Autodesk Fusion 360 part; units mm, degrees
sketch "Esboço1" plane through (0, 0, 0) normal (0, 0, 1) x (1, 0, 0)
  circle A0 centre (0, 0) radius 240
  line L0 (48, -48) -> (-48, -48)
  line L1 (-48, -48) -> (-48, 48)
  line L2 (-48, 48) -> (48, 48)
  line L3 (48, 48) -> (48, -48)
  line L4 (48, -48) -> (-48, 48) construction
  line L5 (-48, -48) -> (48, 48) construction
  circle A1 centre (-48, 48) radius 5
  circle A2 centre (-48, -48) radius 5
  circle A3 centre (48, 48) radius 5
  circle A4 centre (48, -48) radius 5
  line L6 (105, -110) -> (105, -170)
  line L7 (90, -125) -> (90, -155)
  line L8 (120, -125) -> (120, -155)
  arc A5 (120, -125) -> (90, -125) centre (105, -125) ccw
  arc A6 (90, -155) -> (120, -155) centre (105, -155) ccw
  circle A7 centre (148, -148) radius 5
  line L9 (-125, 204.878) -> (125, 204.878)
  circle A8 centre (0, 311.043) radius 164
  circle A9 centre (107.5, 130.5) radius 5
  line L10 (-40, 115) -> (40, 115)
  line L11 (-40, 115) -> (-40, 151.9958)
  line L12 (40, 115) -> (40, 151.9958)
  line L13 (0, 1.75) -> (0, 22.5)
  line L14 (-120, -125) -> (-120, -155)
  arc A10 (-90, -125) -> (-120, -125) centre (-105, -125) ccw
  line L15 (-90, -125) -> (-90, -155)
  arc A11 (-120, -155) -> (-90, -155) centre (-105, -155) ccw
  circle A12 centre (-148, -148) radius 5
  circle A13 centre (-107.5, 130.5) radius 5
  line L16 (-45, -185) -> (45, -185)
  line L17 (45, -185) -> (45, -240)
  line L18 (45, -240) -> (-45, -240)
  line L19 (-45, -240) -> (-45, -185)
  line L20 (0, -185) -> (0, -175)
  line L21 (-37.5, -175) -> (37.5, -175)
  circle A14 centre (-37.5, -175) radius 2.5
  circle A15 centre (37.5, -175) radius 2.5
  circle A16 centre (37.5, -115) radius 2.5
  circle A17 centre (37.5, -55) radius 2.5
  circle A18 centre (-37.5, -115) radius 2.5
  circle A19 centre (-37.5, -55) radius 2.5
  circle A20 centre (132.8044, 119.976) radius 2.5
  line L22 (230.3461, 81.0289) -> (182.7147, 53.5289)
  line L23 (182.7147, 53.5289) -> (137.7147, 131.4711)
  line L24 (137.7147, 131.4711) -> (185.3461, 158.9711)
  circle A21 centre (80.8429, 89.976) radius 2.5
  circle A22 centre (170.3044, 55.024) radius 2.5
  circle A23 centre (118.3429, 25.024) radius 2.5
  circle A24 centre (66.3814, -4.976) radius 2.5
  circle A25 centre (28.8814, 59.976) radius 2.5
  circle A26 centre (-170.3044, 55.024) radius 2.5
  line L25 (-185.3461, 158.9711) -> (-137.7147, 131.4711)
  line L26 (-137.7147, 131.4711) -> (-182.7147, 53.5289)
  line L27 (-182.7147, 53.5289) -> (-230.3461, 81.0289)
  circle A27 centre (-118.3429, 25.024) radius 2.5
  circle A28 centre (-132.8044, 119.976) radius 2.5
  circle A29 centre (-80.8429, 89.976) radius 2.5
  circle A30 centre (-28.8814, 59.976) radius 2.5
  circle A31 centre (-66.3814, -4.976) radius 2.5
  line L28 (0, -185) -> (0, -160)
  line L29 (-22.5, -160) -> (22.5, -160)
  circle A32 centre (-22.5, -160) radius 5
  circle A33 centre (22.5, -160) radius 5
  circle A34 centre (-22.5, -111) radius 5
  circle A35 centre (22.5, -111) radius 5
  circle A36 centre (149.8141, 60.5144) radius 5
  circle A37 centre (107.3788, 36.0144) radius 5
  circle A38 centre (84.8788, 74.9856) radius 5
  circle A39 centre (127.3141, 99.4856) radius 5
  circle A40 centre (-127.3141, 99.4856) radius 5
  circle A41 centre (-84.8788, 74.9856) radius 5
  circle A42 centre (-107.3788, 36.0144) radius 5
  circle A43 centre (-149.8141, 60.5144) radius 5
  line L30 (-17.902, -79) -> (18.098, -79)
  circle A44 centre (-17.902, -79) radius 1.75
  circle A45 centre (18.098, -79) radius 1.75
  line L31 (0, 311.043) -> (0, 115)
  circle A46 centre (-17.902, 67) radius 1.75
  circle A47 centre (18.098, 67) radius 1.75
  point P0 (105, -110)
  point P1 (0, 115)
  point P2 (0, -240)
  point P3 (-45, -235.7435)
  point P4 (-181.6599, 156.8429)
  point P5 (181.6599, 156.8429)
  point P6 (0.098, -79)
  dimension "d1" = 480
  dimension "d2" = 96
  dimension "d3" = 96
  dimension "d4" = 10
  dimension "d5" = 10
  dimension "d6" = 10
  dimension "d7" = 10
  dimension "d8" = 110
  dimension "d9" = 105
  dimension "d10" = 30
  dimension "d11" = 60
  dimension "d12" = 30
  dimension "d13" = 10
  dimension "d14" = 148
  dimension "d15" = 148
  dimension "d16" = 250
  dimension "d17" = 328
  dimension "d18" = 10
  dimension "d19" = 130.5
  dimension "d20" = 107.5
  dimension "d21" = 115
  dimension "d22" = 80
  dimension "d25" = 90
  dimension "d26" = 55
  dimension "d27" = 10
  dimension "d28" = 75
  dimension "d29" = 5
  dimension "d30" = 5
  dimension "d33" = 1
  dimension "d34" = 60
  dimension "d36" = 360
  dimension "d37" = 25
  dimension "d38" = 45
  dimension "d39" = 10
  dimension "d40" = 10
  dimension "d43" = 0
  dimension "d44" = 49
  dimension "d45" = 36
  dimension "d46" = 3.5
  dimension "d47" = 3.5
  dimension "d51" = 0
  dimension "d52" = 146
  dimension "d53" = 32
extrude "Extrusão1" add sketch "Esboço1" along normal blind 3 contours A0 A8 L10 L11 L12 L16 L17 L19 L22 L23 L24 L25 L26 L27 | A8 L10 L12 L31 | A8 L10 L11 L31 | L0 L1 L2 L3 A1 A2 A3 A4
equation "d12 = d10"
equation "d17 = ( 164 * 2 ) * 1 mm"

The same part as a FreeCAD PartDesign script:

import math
import FreeCAD as App
import Part
import Sketcher

V = App.Vector
Q = App.Units.Quantity

doc = App.newDocument("Part")
params = doc.addObject("Spreadsheet::Sheet", "Params")
for row, (alias, value) in enumerate([
    ("sketch1_diameter", "10 mm"),
    ("sketch1_diameter2", "5 mm"),
    ("sketch1_radius", "240 mm"),
    ("sketch1_radius2", "164 mm"),
    ("sketch1_radius3", "15 mm"),
    ("pad1_length", "3 mm"),
], start=1):
    params.set(f"A{row}", alias)
    params.set(f"B{row}", "=" + value)
    params.setAlias(f"B{row}", alias)

body = doc.addObject("PartDesign::Body", "Body")

sketch1 = body.newObject("Sketcher::SketchObject", "Sketch")
sketch1.AttachmentSupport = (doc.getObject("XY_Plane"), [""])
sketch1.MapMode = "FlatFace"
sketch1.addGeometry([
    Part.ArcOfCircle(Part.Circle(V(0, 0, 0), V(0, 0, 1), 240), math.radians(-79.193077), math.radians(19.193086)),
    Part.LineSegment(V(226.659852, 78.900644, 0), V(182.7147, 53.5289, 0)),
    Part.LineSegment(V(182.7147, 53.5289, 0), V(137.7147, 131.4711, 0)),
    Part.LineSegment(V(137.7147, 131.4711, 0), V(181.65989, 156.842866, 0)),
    Part.ArcOfCircle(Part.Circle(V(0, 0, 0), V(0, 0, 1), 240), math.radians(40.806913), math.radians(58.611832)),
    Part.ArcOfCircle(Part.Circle(V(0, 311.043, 0), V(0, 0, 1), 164), math.radians(-139.65809), math.radians(-40.34191)),
    Part.ArcOfCircle(Part.Circle(V(0, 0, 0), V(0, 0, 1), 240), math.radians(121.388168), math.radians(139.193087)),
    Part.LineSegment(V(-181.65989, 156.842866, 0), V(-137.7147, 131.4711, 0)),
    Part.LineSegment(V(-137.7147, 131.4711, 0), V(-182.7147, 53.5289, 0)),
    Part.LineSegment(V(-182.7147, 53.5289, 0), V(-226.659852, 78.900644, 0)),
    Part.ArcOfCircle(Part.Circle(V(0, 0, 0), V(0, 0, 1), 240), math.radians(160.806914), math.radians(259.193077)),
    Part.LineSegment(V(-45, -235.743505, 0), V(-45, -185, 0)),
    Part.LineSegment(V(-45, -185, 0), V(0, -185, 0)),
    Part.LineSegment(V(0, -185, 0), V(45, -185, 0)),
    Part.LineSegment(V(45, -185, 0), V(45, -235.743505, 0)),
    Part.Circle(V(-148, -148, 0), V(0, 0, 1), 5),
    Part.Circle(V(-37.5, -175, 0), V(0, 0, 1), 2.5),
    Part.Circle(V(-22.5, -160, 0), V(0, 0, 1), 5),
    Part.LineSegment(V(-120, -155, 0), V(-120, -125, 0)),
    Part.ArcOfCircle(Part.Circle(V(-105, -125, 0), V(0, 0, 1), 15), math.radians(0), math.radians(180)),
    Part.LineSegment(V(-90, -125, 0), V(-90, -155, 0)),
    Part.ArcOfCircle(Part.Circle(V(-105, -155, 0), V(0, 0, 1), 15), math.radians(180), math.radians(360)),
    Part.Circle(V(-37.5, -115, 0), V(0, 0, 1), 2.5),
    Part.Circle(V(-22.5, -111, 0), V(0, 0, 1), 5),
    Part.Circle(V(-17.902, -79, 0), V(0, 0, 1), 1.75),
    Part.Circle(V(-170.3044, 55.024, 0), V(0, 0, 1), 2.5),
    Part.Circle(V(-149.8141, 60.5144, 0), V(0, 0, 1), 5),
    Part.Circle(V(-127.3141, 99.4856, 0), V(0, 0, 1), 5),
    Part.Circle(V(-118.3429, 25.024, 0), V(0, 0, 1), 2.5),
    Part.Circle(V(-66.3814, -4.976, 0), V(0, 0, 1), 2.5),
    Part.Circle(V(-37.5, -55, 0), V(0, 0, 1), 2.5),
    Part.Circle(V(-107.3788, 36.0144, 0), V(0, 0, 1), 5),
    Part.Circle(V(-84.8788, 74.9856, 0), V(0, 0, 1), 5),
    Part.Circle(V(-80.8429, 89.976, 0), V(0, 0, 1), 2.5),
    Part.Circle(V(-28.8814, 59.976, 0), V(0, 0, 1), 2.5),
    Part.Circle(V(-17.902, 67, 0), V(0, 0, 1), 1.75),
    Part.Circle(V(22.5, -160, 0), V(0, 0, 1), 5),
    Part.Circle(V(37.5, -175, 0), V(0, 0, 1), 2.5),
    Part.Circle(V(22.5, -111, 0), V(0, 0, 1), 5),
    Part.Circle(V(37.5, -115, 0), V(0, 0, 1), 2.5),
    Part.Circle(V(18.098, -79, 0), V(0, 0, 1), 1.75),
    Part.ArcOfCircle(Part.Circle(V(105, -125, 0), V(0, 0, 1), 15), math.radians(0), math.radians(180)),
    Part.LineSegment(V(120, -125, 0), V(120, -155, 0)),
    Part.ArcOfCircle(Part.Circle(V(105, -155, 0), V(0, 0, 1), 15), math.radians(180), math.radians(360)),
    Part.LineSegment(V(90, -155, 0), V(90, -125, 0)),
    Part.Circle(V(148, -148, 0), V(0, 0, 1), 5),
    Part.Circle(V(37.5, -55, 0), V(0, 0, 1), 2.5),
    Part.Circle(V(48, -48, 0), V(0, 0, 1), 5),
    Part.Circle(V(48, 48, 0), V(0, 0, 1), 5),
    Part.Circle(V(-48, 48, 0), V(0, 0, 1), 5),
    Part.Circle(V(-48, -48, 0), V(0, 0, 1), 5),
    Part.Circle(V(66.3814, -4.976, 0), V(0, 0, 1), 2.5),
    Part.Circle(V(118.3429, 25.024, 0), V(0, 0, 1), 2.5),
    Part.Circle(V(28.8814, 59.976, 0), V(0, 0, 1), 2.5),
    Part.Circle(V(18.098, 67, 0), V(0, 0, 1), 1.75),
    Part.Circle(V(107.3788, 36.0144, 0), V(0, 0, 1), 5),
    Part.Circle(V(84.8788, 74.9856, 0), V(0, 0, 1), 5),
    Part.Circle(V(80.8429, 89.976, 0), V(0, 0, 1), 2.5),
    Part.Circle(V(149.8141, 60.5144, 0), V(0, 0, 1), 5),
    Part.Circle(V(170.3044, 55.024, 0), V(0, 0, 1), 2.5),
    Part.Circle(V(127.3141, 99.4856, 0), V(0, 0, 1), 5),
    Part.Circle(V(-132.8044, 119.976, 0), V(0, 0, 1), 2.5),
    Part.Circle(V(-107.5, 130.5, 0), V(0, 0, 1), 5),
    Part.Circle(V(107.5, 130.5, 0), V(0, 0, 1), 5),
    Part.Circle(V(132.8044, 119.976, 0), V(0, 0, 1), 2.5),
], False)
sketch1.addConstraint([
    Sketcher.Constraint("Coincident", 0, 2, 1, 1),
    Sketcher.Constraint("Coincident", 1, 2, 2, 1),
    Sketcher.Constraint("Coincident", 2, 2, 3, 1),
    Sketcher.Constraint("Coincident", 3, 2, 4, 1),
    Sketcher.Constraint("Coincident", 4, 2, 5, 2),
    Sketcher.Constraint("Coincident", 5, 1, 6, 1),
    Sketcher.Constraint("Coincident", 6, 2, 7, 1),
    Sketcher.Constraint("Coincident", 7, 2, 8, 1),
    Sketcher.Constraint("Coincident", 8, 2, 9, 1),
    Sketcher.Constraint("Coincident", 9, 2, 10, 1),
    Sketcher.Constraint("Coincident", 10, 2, 11, 1),
    Sketcher.Constraint("Coincident", 11, 2, 12, 1),
    Sketcher.Constraint("Coincident", 12, 2, 13, 1),
    Sketcher.Constraint("Coincident", 13, 2, 14, 1),
    Sketcher.Constraint("Coincident", 14, 2, 0, 1),
    Sketcher.Constraint("Tangent", 18, 2, 19, 2),
    Sketcher.Constraint("Tangent", 19, 1, 20, 1),
    Sketcher.Constraint("Tangent", 20, 2, 21, 2),
    Sketcher.Constraint("Tangent", 21, 1, 18, 1),
    Sketcher.Constraint("Tangent", 41, 1, 42, 1),
    Sketcher.Constraint("Tangent", 42, 2, 43, 2),
    Sketcher.Constraint("Tangent", 43, 1, 44, 1),
    Sketcher.Constraint("Tangent", 44, 2, 41, 2),
    Sketcher.Constraint("Vertical", 11),
    Sketcher.Constraint("Horizontal", 12),
    Sketcher.Constraint("Horizontal", 13),
    Sketcher.Constraint("Vertical", 14),
    Sketcher.Constraint("Vertical", 18),
    Sketcher.Constraint("Vertical", 20),
    Sketcher.Constraint("Vertical", 42),
    Sketcher.Constraint("Vertical", 44),
    Sketcher.Constraint("Coincident", 0, 3, -1, 1),
    Sketcher.Constraint("Coincident", 4, 3, -1, 1),
    Sketcher.Constraint("Coincident", 6, 3, -1, 1),
    Sketcher.Constraint("Coincident", 10, 3, -1, 1),
    Sketcher.Constraint("Equal", 0, 4),
    Sketcher.Constraint("Equal", 4, 6),
    Sketcher.Constraint("Equal", 6, 10),
    Sketcher.Constraint("Equal", 15, 17),
    Sketcher.Constraint("Equal", 16, 22),
    Sketcher.Constraint("Equal", 17, 23),
    Sketcher.Constraint("Equal", 22, 25),
    Sketcher.Constraint("Equal", 23, 26),
    Sketcher.Constraint("Equal", 26, 27),
    Sketcher.Constraint("Equal", 25, 28),
    Sketcher.Constraint("Equal", 28, 29),
    Sketcher.Constraint("Equal", 29, 30),
    Sketcher.Constraint("Equal", 27, 31),
    Sketcher.Constraint("Equal", 31, 32),
    Sketcher.Constraint("Equal", 30, 33),
    Sketcher.Constraint("Equal", 33, 34),
    Sketcher.Constraint("Equal", 24, 35),
    Sketcher.Constraint("Equal", 32, 36),
    Sketcher.Constraint("Equal", 34, 37),
    Sketcher.Constraint("Equal", 36, 38),
    Sketcher.Constraint("Equal", 37, 39),
    Sketcher.Constraint("Equal", 35, 40),
    Sketcher.Constraint("Equal", 21, 41),
    Sketcher.Constraint("Equal", 38, 45),
    Sketcher.Constraint("Equal", 39, 46),
    Sketcher.Constraint("Equal", 45, 47),
    Sketcher.Constraint("Equal", 47, 48),
    Sketcher.Constraint("Equal", 48, 49),
    Sketcher.Constraint("Equal", 49, 50),
    Sketcher.Constraint("Equal", 46, 51),
    Sketcher.Constraint("Equal", 51, 52),
    Sketcher.Constraint("Equal", 52, 53),
    Sketcher.Constraint("Equal", 40, 54),
    Sketcher.Constraint("Equal", 50, 55),
    Sketcher.Constraint("Equal", 55, 56),
    Sketcher.Constraint("Equal", 53, 57),
    Sketcher.Constraint("Equal", 56, 58),
    Sketcher.Constraint("Equal", 57, 59),
    Sketcher.Constraint("Equal", 58, 60),
    Sketcher.Constraint("Equal", 59, 61),
    Sketcher.Constraint("Equal", 60, 62),
    Sketcher.Constraint("Equal", 62, 63),
    Sketcher.Constraint("Equal", 61, 64),
    Sketcher.Constraint("Symmetric", 47, 3, 49, 3, -1, 1),
    Sketcher.Constraint("Symmetric", 48, 3, 50, 3, -1, 1),
    Sketcher.Constraint("Symmetric", 17, 3, 36, 3, -2),
    Sketcher.Constraint("Symmetric", 16, 3, 37, 3, -2),
    Sketcher.Constraint("Symmetric", 23, 3, 38, 3, -2),
    Sketcher.Constraint("Symmetric", 22, 3, 39, 3, -2),
    Sketcher.Constraint("Symmetric", 19, 3, 41, 3, -2),
    Sketcher.Constraint("Symmetric", 15, 3, 45, 3, -2),
    Sketcher.Constraint("Symmetric", 30, 3, 46, 3, -2),
    Sketcher.Constraint("Symmetric", 48, 3, 49, 3, -2),
    Sketcher.Constraint("Symmetric", 29, 3, 51, 3, -2),
    Sketcher.Constraint("Symmetric", 28, 3, 52, 3, -2),
    Sketcher.Constraint("Symmetric", 34, 3, 53, 3, -2),
    Sketcher.Constraint("Symmetric", 31, 3, 55, 3, -2),
    Sketcher.Constraint("Symmetric", 32, 3, 56, 3, -2),
    Sketcher.Constraint("Symmetric", 33, 3, 57, 3, -2),
    Sketcher.Constraint("Symmetric", 26, 3, 58, 3, -2),
    Sketcher.Constraint("Symmetric", 25, 3, 59, 3, -2),
    Sketcher.Constraint("Symmetric", 27, 3, 60, 3, -2),
    Sketcher.Constraint("Symmetric", 62, 3, 63, 3, -2),
    Sketcher.Constraint("Symmetric", 61, 3, 64, 3, -2),
    Sketcher.Constraint("Symmetric", 2, 2, 7, 2, -2),
    Sketcher.Constraint("Symmetric", 1, 2, 8, 2, -2),
    Sketcher.Constraint("PointOnObject", 5, 3, -2),
    Sketcher.Constraint("PointOnObject", 12, 2, -2),
    Sketcher.Constraint("Perpendicular", 1, 2),
    Sketcher.Constraint("Perpendicular", 2, 3),
    Sketcher.Constraint("Perpendicular", 7, 8),
    Sketcher.Constraint("Perpendicular", 8, 9),
    Sketcher.Constraint("Horizontal", 24, 3, 40, 3),
    Sketcher.Constraint("Horizontal", 21, 3, 43, 3),
    Sketcher.Constraint("Horizontal", 35, 3, 54, 3),
    Sketcher.Constraint("Horizontal", 10, 2, 14, 2),
    Sketcher.Constraint("Vertical", 16, 3, 22, 3),
    Sketcher.Constraint("Vertical", 17, 3, 23, 3),
    Sketcher.Constraint("Vertical", 22, 3, 30, 3),
    Sketcher.Constraint("Vertical", 24, 3, 35, 3),
    Sketcher.Constraint("Vertical", 40, 3, 54, 3),
    Sketcher.Constraint("Equal", 1, 3),
    Sketcher.Constraint("Diameter", 15, 10.0),
    Sketcher.Constraint("Diameter", 16, 5.0),
    Sketcher.Constraint("Radius", 0, 240.0),
    Sketcher.Constraint("Radius", 5, 164.0),
    Sketcher.Constraint("Radius", 19, 15.0),
    Sketcher.Constraint("Diameter", 24, 3.5),
    Sketcher.Constraint("DistanceX", 12, 1, 12, 2, 45.0),
    Sketcher.Constraint("DistanceY", 18, 1, 18, 2, 30.0),
    Sketcher.Constraint("Angle", 3, Q("30 deg")),
    Sketcher.Constraint("Distance", 2, 90.0),
    Sketcher.Constraint("DistanceX", 15, 3, -1, 1, 148.0),
    Sketcher.Constraint("DistanceY", 15, 3, -1, 1, 148.0),
    Sketcher.Constraint("DistanceX", 19, 3, -1, 1, 105.0),
    Sketcher.Constraint("DistanceY", 22, 3, -1, 1, 115.0),
    Sketcher.Constraint("DistanceY", 30, 3, -1, 1, 55.0),
    Sketcher.Constraint("DistanceX", 62, 3, -1, 1, 107.5),
    Sketcher.Constraint("DistanceY", -1, 1, 62, 3, 130.5),
    Sketcher.Constraint("DistanceY", 16, 3, -1, 1, 175.0),
    Sketcher.Constraint("DistanceY", 17, 3, -1, 1, 160.0),
    Sketcher.Constraint("DistanceY", 19, 3, -1, 1, 125.0),
    Sketcher.Constraint("DistanceY", 23, 3, -1, 1, 111.0),
    Sketcher.Constraint("DistanceY", 24, 3, -1, 1, 79.0),
    Sketcher.Constraint("DistanceY", -1, 1, 35, 3, 67.0),
    Sketcher.Constraint("DistanceX", -1, 1, 47, 3, 48.0),
    Sketcher.Constraint("DistanceY", 47, 3, -1, 1, 48.0),
    Sketcher.Constraint("DistanceX", -1, 1, 4, 2, 125.0),
    Sketcher.Constraint("DistanceY", 11, 2, -1, 1, 185.0),
    Sketcher.Constraint("DistanceX", 16, 3, -1, 1, 37.5),
    Sketcher.Constraint("DistanceX", 17, 3, -1, 1, 22.5),
    Sketcher.Constraint("DistanceX", 24, 3, -1, 1, 17.902),
    Sketcher.Constraint("DistanceY", -1, 1, 25, 3, 55.024),
    Sketcher.Constraint("DistanceX", 26, 3, -1, 1, 149.814),
    Sketcher.Constraint("DistanceX", 27, 3, -1, 1, 127.314),
    Sketcher.Constraint("DistanceX", 28, 3, -1, 1, 118.343),
    Sketcher.Constraint("DistanceY", -1, 1, 28, 3, 25.024),
    Sketcher.Constraint("DistanceY", 29, 3, -1, 1, 4.976),
    Sketcher.Constraint("DistanceX", 33, 3, -1, 1, 80.843),
    Sketcher.Constraint("DistanceY", -1, 1, 33, 3, 89.976),
    Sketcher.Constraint("DistanceY", -1, 1, 34, 3, 59.976),
    Sketcher.Constraint("DistanceX", -1, 1, 40, 3, 18.098),
    Sketcher.Constraint("DistanceY", -1, 1, 61, 3, 119.976),
    Sketcher.Constraint("DistanceY", -1, 1, 1, 2, 53.529),
    Sketcher.Constraint("DistanceX", 25, 3, -1, 1, 170.3044),
    Sketcher.Constraint("DistanceY", -1, 1, 26, 3, 60.5144),
    Sketcher.Constraint("DistanceY", -1, 1, 27, 3, 99.4856),
    Sketcher.Constraint("DistanceX", 29, 3, -1, 1, 66.3814),
    Sketcher.Constraint("DistanceX", 31, 3, -1, 1, 107.3788),
    Sketcher.Constraint("DistanceY", -1, 1, 31, 3, 36.0144),
    Sketcher.Constraint("DistanceX", 32, 3, -1, 1, 84.8788),
    Sketcher.Constraint("DistanceY", -1, 1, 32, 3, 74.9856),
    Sketcher.Constraint("DistanceX", 34, 3, -1, 1, 28.8814),
    Sketcher.Constraint("DistanceX", 61, 3, -1, 1, 132.8044),
])
sketch1.setExpression("Constraints[117]", "Params.sketch1_diameter")
sketch1.setExpression("Constraints[118]", "Params.sketch1_diameter2")
sketch1.setExpression("Constraints[119]", "Params.sketch1_radius")
sketch1.setExpression("Constraints[120]", "Params.sketch1_radius2")
sketch1.setExpression("Constraints[121]", "Params.sketch1_radius3")
pad1 = body.newObject("PartDesign::Pad", "Pad")
pad1.Profile = sketch1
pad1.setExpression("Length", "Params.pad1_length")

doc.recompute()
